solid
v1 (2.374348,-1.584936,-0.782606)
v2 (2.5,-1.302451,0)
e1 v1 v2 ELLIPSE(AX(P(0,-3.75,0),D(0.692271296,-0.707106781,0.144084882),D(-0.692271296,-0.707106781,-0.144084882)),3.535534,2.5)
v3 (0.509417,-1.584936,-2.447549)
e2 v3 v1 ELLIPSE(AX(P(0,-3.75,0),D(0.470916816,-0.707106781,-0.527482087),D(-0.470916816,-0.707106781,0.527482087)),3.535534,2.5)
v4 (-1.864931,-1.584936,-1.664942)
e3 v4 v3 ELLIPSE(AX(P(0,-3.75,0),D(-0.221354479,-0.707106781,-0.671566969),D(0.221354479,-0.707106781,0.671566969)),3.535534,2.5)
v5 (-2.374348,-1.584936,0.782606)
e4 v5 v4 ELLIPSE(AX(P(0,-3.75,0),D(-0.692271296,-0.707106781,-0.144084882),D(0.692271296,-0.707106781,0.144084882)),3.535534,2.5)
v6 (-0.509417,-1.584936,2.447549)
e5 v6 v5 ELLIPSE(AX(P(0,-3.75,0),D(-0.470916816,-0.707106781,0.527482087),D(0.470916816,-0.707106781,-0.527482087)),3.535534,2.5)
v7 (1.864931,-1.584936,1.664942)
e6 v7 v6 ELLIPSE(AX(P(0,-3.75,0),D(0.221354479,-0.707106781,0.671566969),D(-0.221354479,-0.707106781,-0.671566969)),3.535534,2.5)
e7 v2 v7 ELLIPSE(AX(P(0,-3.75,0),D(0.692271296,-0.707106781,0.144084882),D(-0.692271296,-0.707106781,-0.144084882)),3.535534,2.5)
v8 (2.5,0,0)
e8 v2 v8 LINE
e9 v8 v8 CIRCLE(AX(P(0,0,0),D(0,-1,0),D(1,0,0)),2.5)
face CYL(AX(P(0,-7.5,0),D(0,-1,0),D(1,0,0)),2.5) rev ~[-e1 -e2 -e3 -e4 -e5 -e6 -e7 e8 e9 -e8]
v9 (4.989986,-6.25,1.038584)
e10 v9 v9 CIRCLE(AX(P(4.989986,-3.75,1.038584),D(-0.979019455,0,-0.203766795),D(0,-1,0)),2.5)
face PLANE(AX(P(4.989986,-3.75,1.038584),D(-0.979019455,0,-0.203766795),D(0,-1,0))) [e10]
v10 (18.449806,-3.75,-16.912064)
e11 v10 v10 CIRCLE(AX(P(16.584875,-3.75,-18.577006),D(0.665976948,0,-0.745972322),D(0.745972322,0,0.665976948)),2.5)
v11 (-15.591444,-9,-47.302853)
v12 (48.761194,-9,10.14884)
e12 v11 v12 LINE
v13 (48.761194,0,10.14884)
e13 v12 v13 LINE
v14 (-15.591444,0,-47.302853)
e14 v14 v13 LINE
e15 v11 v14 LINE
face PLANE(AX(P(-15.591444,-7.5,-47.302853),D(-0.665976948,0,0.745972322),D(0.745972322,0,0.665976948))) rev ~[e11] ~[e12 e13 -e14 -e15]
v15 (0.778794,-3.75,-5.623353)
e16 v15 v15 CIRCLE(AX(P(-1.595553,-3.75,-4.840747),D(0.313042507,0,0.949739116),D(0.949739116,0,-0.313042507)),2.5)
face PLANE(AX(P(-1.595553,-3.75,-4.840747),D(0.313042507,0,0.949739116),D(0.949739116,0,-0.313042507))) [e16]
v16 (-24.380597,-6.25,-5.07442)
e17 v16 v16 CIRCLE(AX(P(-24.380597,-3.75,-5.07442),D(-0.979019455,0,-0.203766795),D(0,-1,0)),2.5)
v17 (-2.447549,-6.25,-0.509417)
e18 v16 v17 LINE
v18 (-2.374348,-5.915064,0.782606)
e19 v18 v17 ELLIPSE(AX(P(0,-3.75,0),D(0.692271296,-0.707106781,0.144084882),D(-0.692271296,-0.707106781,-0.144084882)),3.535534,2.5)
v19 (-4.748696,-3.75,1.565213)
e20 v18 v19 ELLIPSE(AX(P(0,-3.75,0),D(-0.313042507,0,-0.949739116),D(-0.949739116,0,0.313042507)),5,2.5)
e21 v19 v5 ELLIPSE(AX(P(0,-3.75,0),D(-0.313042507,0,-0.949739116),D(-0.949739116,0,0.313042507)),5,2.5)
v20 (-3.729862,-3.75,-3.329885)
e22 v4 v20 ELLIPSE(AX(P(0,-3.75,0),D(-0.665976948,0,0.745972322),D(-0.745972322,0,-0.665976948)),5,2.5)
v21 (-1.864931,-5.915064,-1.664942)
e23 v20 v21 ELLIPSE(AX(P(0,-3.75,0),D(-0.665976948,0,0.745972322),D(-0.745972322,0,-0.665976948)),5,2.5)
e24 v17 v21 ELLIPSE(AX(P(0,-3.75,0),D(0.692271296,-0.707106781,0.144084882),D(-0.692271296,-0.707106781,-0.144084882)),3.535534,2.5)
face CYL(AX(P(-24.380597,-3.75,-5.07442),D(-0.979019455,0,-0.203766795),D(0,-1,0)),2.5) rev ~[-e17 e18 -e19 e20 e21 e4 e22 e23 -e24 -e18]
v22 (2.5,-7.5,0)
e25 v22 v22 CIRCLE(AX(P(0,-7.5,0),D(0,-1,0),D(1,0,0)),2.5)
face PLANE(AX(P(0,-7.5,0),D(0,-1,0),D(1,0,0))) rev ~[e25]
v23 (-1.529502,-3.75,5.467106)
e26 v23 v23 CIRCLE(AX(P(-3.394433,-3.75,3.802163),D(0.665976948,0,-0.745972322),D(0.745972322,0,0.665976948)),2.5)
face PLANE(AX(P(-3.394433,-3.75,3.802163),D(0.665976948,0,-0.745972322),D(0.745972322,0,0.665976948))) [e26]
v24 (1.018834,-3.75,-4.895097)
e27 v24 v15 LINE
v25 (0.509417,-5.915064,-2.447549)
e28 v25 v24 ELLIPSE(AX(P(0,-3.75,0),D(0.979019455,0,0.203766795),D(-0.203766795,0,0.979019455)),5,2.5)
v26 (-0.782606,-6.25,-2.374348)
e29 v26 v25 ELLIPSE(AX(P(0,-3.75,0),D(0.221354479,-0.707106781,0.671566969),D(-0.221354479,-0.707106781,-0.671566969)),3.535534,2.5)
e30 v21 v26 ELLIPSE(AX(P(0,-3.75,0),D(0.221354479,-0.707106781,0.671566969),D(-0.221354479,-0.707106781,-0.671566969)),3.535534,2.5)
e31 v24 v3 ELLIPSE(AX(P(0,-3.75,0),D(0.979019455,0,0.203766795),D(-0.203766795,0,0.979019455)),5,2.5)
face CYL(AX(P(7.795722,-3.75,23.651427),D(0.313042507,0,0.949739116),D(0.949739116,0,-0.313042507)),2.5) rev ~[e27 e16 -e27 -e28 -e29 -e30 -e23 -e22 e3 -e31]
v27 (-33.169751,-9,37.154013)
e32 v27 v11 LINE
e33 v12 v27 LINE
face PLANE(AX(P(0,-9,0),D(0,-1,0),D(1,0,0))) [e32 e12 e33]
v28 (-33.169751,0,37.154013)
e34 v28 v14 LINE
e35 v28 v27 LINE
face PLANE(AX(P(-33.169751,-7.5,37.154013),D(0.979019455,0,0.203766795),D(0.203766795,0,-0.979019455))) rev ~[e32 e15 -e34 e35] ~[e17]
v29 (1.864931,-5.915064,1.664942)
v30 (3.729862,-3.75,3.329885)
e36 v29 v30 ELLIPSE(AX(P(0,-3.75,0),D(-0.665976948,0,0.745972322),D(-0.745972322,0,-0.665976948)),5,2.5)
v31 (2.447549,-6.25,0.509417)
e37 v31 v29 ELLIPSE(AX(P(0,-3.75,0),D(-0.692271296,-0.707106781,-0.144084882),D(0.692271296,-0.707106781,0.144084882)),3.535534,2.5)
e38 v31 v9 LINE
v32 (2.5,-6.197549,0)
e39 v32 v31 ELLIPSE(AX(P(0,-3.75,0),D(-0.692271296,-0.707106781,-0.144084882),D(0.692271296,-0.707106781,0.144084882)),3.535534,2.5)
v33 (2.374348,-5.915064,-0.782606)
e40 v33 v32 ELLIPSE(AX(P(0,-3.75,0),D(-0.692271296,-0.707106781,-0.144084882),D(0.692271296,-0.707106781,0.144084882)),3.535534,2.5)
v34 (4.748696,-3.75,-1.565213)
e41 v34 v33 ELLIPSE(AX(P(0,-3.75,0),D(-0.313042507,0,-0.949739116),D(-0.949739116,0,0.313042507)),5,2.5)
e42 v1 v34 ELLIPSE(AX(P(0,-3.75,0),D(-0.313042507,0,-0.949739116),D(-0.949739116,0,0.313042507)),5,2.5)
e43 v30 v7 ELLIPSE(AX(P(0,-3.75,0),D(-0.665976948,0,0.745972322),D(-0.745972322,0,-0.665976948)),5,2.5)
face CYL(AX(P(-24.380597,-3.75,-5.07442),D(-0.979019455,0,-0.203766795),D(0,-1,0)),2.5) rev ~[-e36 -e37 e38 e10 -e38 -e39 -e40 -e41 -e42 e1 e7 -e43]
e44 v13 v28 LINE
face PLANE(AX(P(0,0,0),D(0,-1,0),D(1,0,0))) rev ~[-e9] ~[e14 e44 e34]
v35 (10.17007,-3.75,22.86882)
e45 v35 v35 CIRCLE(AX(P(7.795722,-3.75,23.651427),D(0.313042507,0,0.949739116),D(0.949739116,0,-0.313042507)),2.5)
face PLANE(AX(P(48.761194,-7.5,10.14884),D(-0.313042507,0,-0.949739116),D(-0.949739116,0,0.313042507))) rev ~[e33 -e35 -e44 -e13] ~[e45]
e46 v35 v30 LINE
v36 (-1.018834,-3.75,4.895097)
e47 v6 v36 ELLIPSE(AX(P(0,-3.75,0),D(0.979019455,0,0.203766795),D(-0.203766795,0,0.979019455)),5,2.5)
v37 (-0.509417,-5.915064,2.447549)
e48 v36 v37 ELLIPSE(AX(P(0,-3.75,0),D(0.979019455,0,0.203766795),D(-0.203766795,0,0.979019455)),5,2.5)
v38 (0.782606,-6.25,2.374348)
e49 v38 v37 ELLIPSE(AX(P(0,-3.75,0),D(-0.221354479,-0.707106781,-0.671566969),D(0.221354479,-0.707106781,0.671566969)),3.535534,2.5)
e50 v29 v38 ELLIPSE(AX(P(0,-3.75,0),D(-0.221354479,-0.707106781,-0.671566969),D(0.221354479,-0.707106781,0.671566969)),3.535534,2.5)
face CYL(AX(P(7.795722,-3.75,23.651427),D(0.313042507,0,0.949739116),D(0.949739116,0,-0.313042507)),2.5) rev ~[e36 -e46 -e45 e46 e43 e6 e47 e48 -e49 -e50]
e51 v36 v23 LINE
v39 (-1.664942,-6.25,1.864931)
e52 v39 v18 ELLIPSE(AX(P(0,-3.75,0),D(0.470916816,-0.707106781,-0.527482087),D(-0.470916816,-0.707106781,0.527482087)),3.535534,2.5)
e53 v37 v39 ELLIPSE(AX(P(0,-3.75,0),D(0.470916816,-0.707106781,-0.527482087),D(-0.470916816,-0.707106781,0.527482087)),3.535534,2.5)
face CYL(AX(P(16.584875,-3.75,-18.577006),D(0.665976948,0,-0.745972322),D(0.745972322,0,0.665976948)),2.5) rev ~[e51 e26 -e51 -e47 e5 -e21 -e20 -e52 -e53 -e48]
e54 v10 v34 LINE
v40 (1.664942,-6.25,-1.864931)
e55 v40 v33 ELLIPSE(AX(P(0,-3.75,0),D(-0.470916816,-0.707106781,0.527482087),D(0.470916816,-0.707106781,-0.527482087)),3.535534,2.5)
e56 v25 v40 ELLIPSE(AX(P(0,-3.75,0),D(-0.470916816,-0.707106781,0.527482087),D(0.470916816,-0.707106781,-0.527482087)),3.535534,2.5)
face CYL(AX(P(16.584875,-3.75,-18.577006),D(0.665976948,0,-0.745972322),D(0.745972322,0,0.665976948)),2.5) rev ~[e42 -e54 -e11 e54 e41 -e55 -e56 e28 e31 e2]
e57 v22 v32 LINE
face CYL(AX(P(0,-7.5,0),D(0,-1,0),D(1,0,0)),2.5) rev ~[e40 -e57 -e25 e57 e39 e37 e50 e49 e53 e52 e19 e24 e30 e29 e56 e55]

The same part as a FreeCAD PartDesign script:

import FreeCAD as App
import Part
import Sketcher

V = App.Vector
Q = App.Units.Quantity


def add_polygon(sketch, points):
    """Adds a closed chain of lines whose ends are joined by coincident constraints."""
    first, n = sketch.GeometryCount, len(points)
    for a, b in zip(points, points[1:] + points[:1]):
        sketch.addGeometry(Part.LineSegment(App.Vector(*a, 0), App.Vector(*b, 0)), False)
    for i in range(n):
        sketch.addConstraint(Sketcher.Constraint("Coincident", first + i, 2, first + (i + 1) % n, 1))

doc = App.newDocument("Part")
body = doc.addObject("PartDesign::Body", "Body")

# Sketch on XZ plane
sketch1 = body.newObject("Sketcher::SketchObject", "Sketch")
sketch1.AttachmentSupport = (doc.getObject("XZ_Plane"), [""])
sketch1.MapMode = "FlatFace"
add_polygon(sketch1, [(49, 10), (-33, 37), (-16, -47)])  # lines 0-2
sketch1.addConstraint([
    Sketcher.Constraint("Equal", 0, 1),
    Sketcher.Constraint("Equal", 1, 2),
    Sketcher.Constraint("Distance", 0, Q("86.26679 mm")),
    Sketcher.Constraint("DistanceX", 0, 2, -1, 1, Q("33.169751 mm")),
    Sketcher.Constraint("DistanceY", -1, 1, 2, 2, Q("10.14884 mm")),
    Sketcher.Constraint("DistanceY", -1, 1, 0, 2, Q("37.154013 mm")),
])
pad1 = body.newObject("PartDesign::Pad", "Pad")
pad1.Profile = sketch1
pad1.Length = 7.5

# Sketch on XZ plane
sketch2 = body.newObject("Sketcher::SketchObject", "Sketch001")
sketch2.AttachmentSupport = (doc.getObject("XZ_Plane"), [""])
sketch2.MapMode = "FlatFace"
sketch2.AttachmentOffset = App.Placement(V(0, 0, 7.5), App.Rotation())
sketch2.addGeometry(Part.Circle(V(0, 0, 0), V(0, 0, 1), 2.5), False)
sketch2.addConstraint([
    Sketcher.Constraint("Coincident", 0, 3, -1, 1),
    Sketcher.Constraint("Diameter", 0, Q("5 mm")),
])
pocket1 = body.newObject("PartDesign::Pocket", "Pocket")
pocket1.Profile = sketch2
pocket1.Length = 25

# Sketch on an angled plane
sketch3 = body.newObject("Sketcher::SketchObject", "Sketch002")
sketch3.Placement = App.Placement(V(-24.380597, 0, -5.07442), App.Rotation(V(0, -1, 0), V(-0.203766795, 0, 0.979019455), V(-0.979019455, 0, -0.203766795), "ZXY"))
sketch3.addGeometry(Part.Circle(V(3.8, 0, 0), V(0, 0, 1), 2.5), False)
sketch3.addConstraint([
    Sketcher.Constraint("PointOnObject", 0, 3, -1),
    Sketcher.Constraint("Diameter", 0, Q("5 mm")),
    Sketcher.Constraint("DistanceX", -1, 1, 0, 3, Q("3.75 mm")),
])
pocket2 = body.newObject("PartDesign::Pocket", "Pocket001")
pocket2.Profile = sketch3
pocket2.Length = 30

# Sketch on an angled plane
sketch4 = body.newObject("Sketcher::SketchObject", "Sketch003")
sketch4.Placement = App.Placement(V(7.795722, 0, 23.651427), App.Rotation(V(0.949739116, 0, -0.313042507), V(0, 1, 0), V(0.313042507, 0, 0.949739116), "ZXY"))
sketch4.addGeometry(Part.Circle(V(0, -3.7, 0), V(0, 0, 1), 2.5), False)
sketch4.addConstraint([
    Sketcher.Constraint("PointOnObject", 0, 3, -2),
    Sketcher.Constraint("Diameter", 0, Q("5 mm")),
    Sketcher.Constraint("DistanceY", 0, 3, -1, 1, Q("3.75 mm")),
])
pocket3 = body.newObject("PartDesign::Pocket", "Pocket002")
pocket3.Profile = sketch4
pocket3.Length = 30

# Sketch on an angled plane
sketch5 = body.newObject("Sketcher::SketchObject", "Sketch004")
sketch5.Placement = App.Placement(V(16.584875, 0, -18.577006), App.Rotation(V(0.745972322, 0, 0.665976948), V(0, -1, 0), V(0.665976948, 0, -0.745972322), "ZXY"))
sketch5.addGeometry(Part.Circle(V(0, 3.8, 0), V(0, 0, 1), 2.5), False)
sketch5.addConstraint([
    Sketcher.Constraint("PointOnObject", 0, 3, -2),
    Sketcher.Constraint("Diameter", 0, Q("5 mm")),
    Sketcher.Constraint("DistanceY", -1, 1, 0, 3, Q("3.75 mm")),
])
pocket4 = body.newObject("PartDesign::Pocket", "Pocket003")
pocket4.Profile = sketch5
pocket4.Length = 30

# Sketch on XZ plane
sketch6 = body.newObject("Sketcher::SketchObject", "Sketch005")
sketch6.AttachmentSupport = (doc.getObject("XZ_Plane"), [""])
sketch6.MapMode = "FlatFace"
sketch6.AttachmentOffset = App.Placement(V(0, 0, 7.5), App.Rotation())
add_polygon(sketch6, [(49, 10), (-33, 37), (-16, -47)])  # lines 0-2
sketch6.addConstraint([
    Sketcher.Constraint("Equal", 0, 1),
    Sketcher.Constraint("Equal", 1, 2),
    Sketcher.Constraint("Distance", 0, Q("86.26679 mm")),
    Sketcher.Constraint("DistanceX", 0, 2, -1, 1, Q("33.169751 mm")),
    Sketcher.Constraint("DistanceY", -1, 1, 2, 2, Q("10.14884 mm")),
    Sketcher.Constraint("DistanceY", -1, 1, 0, 2, Q("37.154013 mm")),
])
pad2 = body.newObject("PartDesign::Pad", "Pad001")
pad2.Profile = sketch6
pad2.Length = 1.5

doc.recompute()
